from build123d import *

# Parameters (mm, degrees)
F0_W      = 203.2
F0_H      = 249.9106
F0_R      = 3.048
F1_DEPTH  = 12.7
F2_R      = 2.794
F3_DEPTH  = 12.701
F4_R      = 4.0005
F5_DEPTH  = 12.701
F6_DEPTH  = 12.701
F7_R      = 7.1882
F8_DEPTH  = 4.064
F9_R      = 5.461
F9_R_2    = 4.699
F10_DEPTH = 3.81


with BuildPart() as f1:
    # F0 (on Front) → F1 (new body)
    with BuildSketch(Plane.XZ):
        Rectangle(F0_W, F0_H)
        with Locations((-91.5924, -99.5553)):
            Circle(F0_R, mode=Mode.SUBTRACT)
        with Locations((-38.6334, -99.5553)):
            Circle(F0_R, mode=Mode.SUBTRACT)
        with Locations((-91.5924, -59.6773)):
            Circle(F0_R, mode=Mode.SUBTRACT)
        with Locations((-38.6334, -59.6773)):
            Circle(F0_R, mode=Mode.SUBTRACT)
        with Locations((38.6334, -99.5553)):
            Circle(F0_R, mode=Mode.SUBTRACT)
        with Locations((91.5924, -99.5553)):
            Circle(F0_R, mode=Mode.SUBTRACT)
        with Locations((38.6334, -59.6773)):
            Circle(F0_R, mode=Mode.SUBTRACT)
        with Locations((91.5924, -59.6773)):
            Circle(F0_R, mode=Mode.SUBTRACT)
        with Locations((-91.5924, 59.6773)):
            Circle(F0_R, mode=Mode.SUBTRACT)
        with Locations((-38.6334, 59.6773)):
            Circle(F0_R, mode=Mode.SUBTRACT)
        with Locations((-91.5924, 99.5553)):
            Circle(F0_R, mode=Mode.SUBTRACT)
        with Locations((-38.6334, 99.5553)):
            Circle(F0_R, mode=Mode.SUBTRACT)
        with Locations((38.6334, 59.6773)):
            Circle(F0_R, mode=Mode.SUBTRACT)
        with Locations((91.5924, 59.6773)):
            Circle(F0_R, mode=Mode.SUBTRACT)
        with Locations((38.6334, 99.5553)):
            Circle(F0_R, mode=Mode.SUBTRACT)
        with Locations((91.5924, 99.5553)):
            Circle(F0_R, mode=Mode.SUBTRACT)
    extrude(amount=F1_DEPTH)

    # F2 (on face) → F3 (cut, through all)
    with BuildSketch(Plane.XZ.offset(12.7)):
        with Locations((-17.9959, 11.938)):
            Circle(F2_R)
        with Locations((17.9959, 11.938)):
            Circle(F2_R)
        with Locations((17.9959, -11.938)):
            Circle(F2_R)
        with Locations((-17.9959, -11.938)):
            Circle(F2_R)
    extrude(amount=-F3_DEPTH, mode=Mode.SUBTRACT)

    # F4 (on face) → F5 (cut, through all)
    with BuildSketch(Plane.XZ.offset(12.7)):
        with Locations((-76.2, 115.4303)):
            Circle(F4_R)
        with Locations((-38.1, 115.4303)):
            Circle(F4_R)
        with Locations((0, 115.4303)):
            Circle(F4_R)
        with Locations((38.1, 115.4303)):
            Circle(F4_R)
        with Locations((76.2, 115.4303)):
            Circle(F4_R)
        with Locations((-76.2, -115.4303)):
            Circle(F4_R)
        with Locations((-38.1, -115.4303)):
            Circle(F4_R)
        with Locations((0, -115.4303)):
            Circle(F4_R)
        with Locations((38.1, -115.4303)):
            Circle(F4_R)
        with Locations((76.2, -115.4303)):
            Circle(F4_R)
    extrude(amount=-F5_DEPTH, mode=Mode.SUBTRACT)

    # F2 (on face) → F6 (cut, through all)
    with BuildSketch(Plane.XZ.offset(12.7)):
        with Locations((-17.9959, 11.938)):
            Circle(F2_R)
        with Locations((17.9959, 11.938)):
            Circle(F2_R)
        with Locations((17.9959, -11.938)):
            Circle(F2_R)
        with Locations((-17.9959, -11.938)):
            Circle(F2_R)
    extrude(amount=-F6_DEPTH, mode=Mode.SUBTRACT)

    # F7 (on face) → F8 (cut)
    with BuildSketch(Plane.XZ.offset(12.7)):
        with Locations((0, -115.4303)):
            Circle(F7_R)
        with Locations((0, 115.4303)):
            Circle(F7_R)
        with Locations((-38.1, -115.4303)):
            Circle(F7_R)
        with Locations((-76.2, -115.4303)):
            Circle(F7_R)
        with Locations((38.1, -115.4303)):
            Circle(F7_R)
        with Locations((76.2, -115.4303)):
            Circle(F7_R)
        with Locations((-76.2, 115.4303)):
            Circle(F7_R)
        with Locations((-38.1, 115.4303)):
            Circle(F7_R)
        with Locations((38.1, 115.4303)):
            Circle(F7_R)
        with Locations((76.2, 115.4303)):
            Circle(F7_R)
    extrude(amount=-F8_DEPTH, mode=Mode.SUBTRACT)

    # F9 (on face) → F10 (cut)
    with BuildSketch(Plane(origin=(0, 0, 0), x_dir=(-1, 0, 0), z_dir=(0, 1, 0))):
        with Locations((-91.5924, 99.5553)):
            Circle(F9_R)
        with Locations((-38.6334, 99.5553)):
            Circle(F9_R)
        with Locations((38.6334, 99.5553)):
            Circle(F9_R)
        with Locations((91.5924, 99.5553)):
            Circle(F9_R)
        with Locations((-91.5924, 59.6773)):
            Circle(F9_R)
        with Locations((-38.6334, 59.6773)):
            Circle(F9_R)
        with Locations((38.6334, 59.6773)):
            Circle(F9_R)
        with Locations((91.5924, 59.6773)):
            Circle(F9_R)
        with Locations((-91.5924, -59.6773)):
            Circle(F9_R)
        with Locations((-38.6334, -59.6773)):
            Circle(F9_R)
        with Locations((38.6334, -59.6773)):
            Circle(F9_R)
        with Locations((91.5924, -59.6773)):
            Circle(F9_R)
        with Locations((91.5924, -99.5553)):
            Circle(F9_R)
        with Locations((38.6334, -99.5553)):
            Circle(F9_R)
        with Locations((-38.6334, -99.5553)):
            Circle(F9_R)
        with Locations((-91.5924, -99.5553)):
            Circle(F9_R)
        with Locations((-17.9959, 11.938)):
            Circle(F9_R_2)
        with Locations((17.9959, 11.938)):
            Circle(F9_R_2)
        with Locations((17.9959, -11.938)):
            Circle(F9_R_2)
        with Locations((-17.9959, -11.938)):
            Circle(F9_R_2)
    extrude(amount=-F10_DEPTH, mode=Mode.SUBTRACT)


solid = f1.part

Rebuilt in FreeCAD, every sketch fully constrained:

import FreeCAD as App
import Part
import Sketcher
from FreeCAD import Vector
Q = App.Units.Quantity

doc = App.newDocument("Part")
body = doc.addObject("PartDesign::Body", "Body")

# Sketch on XZ plane
sketch1 = doc.addObject("Sketcher::SketchObject", "Sketch")
body.addObject(sketch1)
sketch1.AttachmentSupport = (doc.XZ_Plane, [""])
sketch1.MapMode = "FlatFace"
sketch1.addGeometry(Part.LineSegment(Vector(-101.6, 124.9553, 0), Vector(-101.6, -124.9553, 0)), False)
sketch1.addGeometry(Part.LineSegment(Vector(-101.6, -124.9553, 0), Vector(101.6, -124.9553, 0)), False)
sketch1.addGeometry(Part.LineSegment(Vector(101.6, -124.9553, 0), Vector(101.6, 124.9553, 0)), False)
sketch1.addGeometry(Part.LineSegment(Vector(101.6, 124.9553, 0), Vector(-101.6, 124.9553, 0)), False)
sketch1.addGeometry(Part.Circle(Vector(-91.5924, -99.5553, 0), Vector(0, 0, 1), 3.048), False)
sketch1.addGeometry(Part.Circle(Vector(-91.5924, -59.6773, 0), Vector(0, 0, 1), 3.048), False)
sketch1.addGeometry(Part.Circle(Vector(-38.6334, -99.5553, 0), Vector(0, 0, 1), 3.048), False)
sketch1.addGeometry(Part.Circle(Vector(-38.6334, -59.6773, 0), Vector(0, 0, 1), 3.048), False)
sketch1.addGeometry(Part.Circle(Vector(38.6334, -99.5553, 0), Vector(0, 0, 1), 3.048), False)
sketch1.addGeometry(Part.Circle(Vector(38.6334, -59.6773, 0), Vector(0, 0, 1), 3.048), False)
sketch1.addGeometry(Part.Circle(Vector(91.5924, -99.5553, 0), Vector(0, 0, 1), 3.048), False)
sketch1.addGeometry(Part.Circle(Vector(91.5924, -59.6773, 0), Vector(0, 0, 1), 3.048), False)
sketch1.addGeometry(Part.Circle(Vector(-91.5924, 59.6773, 0), Vector(0, 0, 1), 3.048), False)
sketch1.addGeometry(Part.Circle(Vector(-91.5924, 99.5553, 0), Vector(0, 0, 1), 3.048), False)
sketch1.addGeometry(Part.Circle(Vector(-38.6334, 59.6773, 0), Vector(0, 0, 1), 3.048), False)
sketch1.addGeometry(Part.Circle(Vector(-38.6334, 99.5553, 0), Vector(0, 0, 1), 3.048), False)
sketch1.addGeometry(Part.Circle(Vector(38.6334, 59.6773, 0), Vector(0, 0, 1), 3.048), False)
sketch1.addGeometry(Part.Circle(Vector(38.6334, 99.5553, 0), Vector(0, 0, 1), 3.048), False)
sketch1.addGeometry(Part.Circle(Vector(91.5924, 59.6773, 0), Vector(0, 0, 1), 3.048), False)
sketch1.addGeometry(Part.Circle(Vector(91.5924, 99.5553, 0), Vector(0, 0, 1), 3.048), False)
sketch1.addConstraint(Sketcher.Constraint("Coincident", 0, 2, 1, 1))
sketch1.addConstraint(Sketcher.Constraint("Coincident", 1, 2, 2, 1))
sketch1.addConstraint(Sketcher.Constraint("Coincident", 2, 2, 3, 1))
sketch1.addConstraint(Sketcher.Constraint("Coincident", 3, 2, 0, 1))
sketch1.addConstraint(Sketcher.Constraint("Vertical", 0))
sketch1.addConstraint(Sketcher.Constraint("Horizontal", 1))
sketch1.addConstraint(Sketcher.Constraint("Vertical", 2))
sketch1.addConstraint(Sketcher.Constraint("Horizontal", 3))
sketch1.addConstraint(Sketcher.Constraint("Equal", 4, 5))
sketch1.addConstraint(Sketcher.Constraint("Equal", 5, 6))
sketch1.addConstraint(Sketcher.Constraint("Equal", 6, 7))
sketch1.addConstraint(Sketcher.Constraint("Equal", 7, 8))
sketch1.addConstraint(Sketcher.Constraint("Equal", 8, 9))
sketch1.addConstraint(Sketcher.Constraint("Equal", 9, 10))
sketch1.addConstraint(Sketcher.Constraint("Equal", 10, 11))
sketch1.addConstraint(Sketcher.Constraint("Equal", 11, 12))
sketch1.addConstraint(Sketcher.Constraint("Equal", 12, 13))
sketch1.addConstraint(Sketcher.Constraint("Equal", 13, 14))
sketch1.addConstraint(Sketcher.Constraint("Equal", 14, 15))
sketch1.addConstraint(Sketcher.Constraint("Equal", 15, 16))
sketch1.addConstraint(Sketcher.Constraint("Equal", 16, 17))
sketch1.addConstraint(Sketcher.Constraint("Equal", 17, 18))
sketch1.addConstraint(Sketcher.Constraint("Equal", 18, 19))
sketch1.addConstraint(Sketcher.Constraint("Symmetric", 11, 3, 12, 3, -1, 1))
sketch1.addConstraint(Sketcher.Constraint("Symmetric", 10, 3, 13, 3, -1, 1))
sketch1.addConstraint(Sketcher.Constraint("Symmetric", 9, 3, 14, 3, -1, 1))
sketch1.addConstraint(Sketcher.Constraint("Symmetric", 8, 3, 15, 3, -1, 1))
sketch1.addConstraint(Sketcher.Constraint("Symmetric", 7, 3, 16, 3, -1, 1))
sketch1.addConstraint(Sketcher.Constraint("Symmetric", 6, 3, 17, 3, -1, 1))
sketch1.addConstraint(Sketcher.Constraint("Symmetric", 5, 3, 18, 3, -1, 1))
sketch1.addConstraint(Sketcher.Constraint("Symmetric", 4, 3, 19, 3, -1, 1))
sketch1.addConstraint(Sketcher.Constraint("Symmetric", 0, 2, 2, 2, -1, 1))
sketch1.addConstraint(Sketcher.Constraint("Symmetric", 6, 3, 8, 3, -2))
sketch1.addConstraint(Sketcher.Constraint("Symmetric", 7, 3, 9, 3, -2))
sketch1.addConstraint(Sketcher.Constraint("Symmetric", 4, 3, 10, 3, -2))
sketch1.addConstraint(Sketcher.Constraint("Symmetric", 5, 3, 11, 3, -2))
sketch1.addConstraint(Sketcher.Constraint("Horizontal", 4, 3, 6, 3))
sketch1.addConstraint(Sketcher.Constraint("Horizontal", 5, 3, 7, 3))
sketch1.addConstraint(Sketcher.Constraint("Vertical", 4, 3, 5, 3))
sketch1.addConstraint(Sketcher.Constraint("Vertical", 6, 3, 7, 3))
sketch1.addConstraint(Sketcher.Constraint("Diameter", 4, Q("0.24 in")))
sketch1.addConstraint(Sketcher.Constraint("DistanceX", 1, 1, 1, 2, Q("8 in")))
sketch1.addConstraint(Sketcher.Constraint("DistanceY", 0, 2, 4, 3, Q("1 in")))
sketch1.addConstraint(Sketcher.Constraint("DistanceY", 0, 2, 0, 1, Q("9.839 in")))
sketch1.addConstraint(Sketcher.Constraint("DistanceY", 4, 3, 5, 3, Q("1.57 in")))
sketch1.addConstraint(Sketcher.Constraint("DistanceX", 4, 3, -1, 1, Q("3.606 in")))
sketch1.addConstraint(Sketcher.Constraint("DistanceX", 6, 3, -1, 1, Q("1.521 in")))
pad1 = doc.addObject("PartDesign::Pad", "Pad")
body.addObject(pad1)
pad1.Profile = sketch1
pad1.Length = Q("0.5 in")

# Sketch on XZ plane
sketch2 = doc.addObject("Sketcher::SketchObject", "Sketch001")
body.addObject(sketch2)
sketch2.AttachmentSupport = (doc.XZ_Plane, [""])
sketch2.MapMode = "FlatFace"
sketch2.AttachmentOffset = App.Placement(Vector(0, 0, 0.5 * 25.4), App.Rotation())
sketch2.addGeometry(Part.Circle(Vector(-17.9959, 11.938, 0), Vector(0, 0, 1), 2.794), False)
sketch2.addGeometry(Part.Circle(Vector(17.9959, 11.938, 0), Vector(0, 0, 1), 2.794), False)
sketch2.addGeometry(Part.Circle(Vector(17.9959, -11.938, 0), Vector(0, 0, 1), 2.794), False)
sketch2.addGeometry(Part.Circle(Vector(-17.9959, -11.938, 0), Vector(0, 0, 1), 2.794), False)
sketch2.addConstraint(Sketcher.Constraint("Equal", 0, 1))
sketch2.addConstraint(Sketcher.Constraint("Equal", 1, 2))
sketch2.addConstraint(Sketcher.Constraint("Equal", 2, 3))
sketch2.addConstraint(Sketcher.Constraint("Symmetric", 0, 3, 2, 3, -1, 1))
sketch2.addConstraint(Sketcher.Constraint("Symmetric", 1, 3, 3, 3, -1, 1))
sketch2.addConstraint(Sketcher.Constraint("Symmetric", 0, 3, 1, 3, -2))
sketch2.addConstraint(Sketcher.Constraint("Diameter", 0, Q("0.22 in")))
sketch2.addConstraint(Sketcher.Constraint("DistanceY", -1, 1, 0, 3, Q("0.47 in")))
sketch2.addConstraint(Sketcher.Constraint("DistanceX", 0, 3, 1, 3, Q("1.417 in")))
pocket1 = doc.addObject("PartDesign::Pocket", "Pocket")
body.addObject(pocket1)
pocket1.Profile = sketch2
pocket1.Type = "ThroughAll"

# Sketch on XZ plane
sketch3 = doc.addObject("Sketcher::SketchObject", "Sketch002")
body.addObject(sketch3)
sketch3.AttachmentSupport = (doc.XZ_Plane, [""])
sketch3.MapMode = "FlatFace"
sketch3.AttachmentOffset = App.Placement(Vector(0, 0, 0.5 * 25.4), App.Rotation())
sketch3.addGeometry(Part.Circle(Vector(-76.2, 115.4303, 0), Vector(0, 0, 1), 4.0005), False)
sketch3.addGeometry(Part.Circle(Vector(-38.1, 115.4303, 0), Vector(0, 0, 1), 4.0005), False)
sketch3.addGeometry(Part.Circle(Vector(0, 115.4303, 0), Vector(0, 0, 1), 4.0005), False)
sketch3.addGeometry(Part.Circle(Vector(38.1, 115.4303, 0), Vector(0, 0, 1), 4.0005), False)
sketch3.addGeometry(Part.Circle(Vector(76.2, 115.4303, 0), Vector(0, 0, 1), 4.0005), False)
sketch3.addGeometry(Part.Circle(Vector(-76.2, -115.4303, 0), Vector(0, 0, 1), 4.0005), False)
sketch3.addGeometry(Part.Circle(Vector(-38.1, -115.4303, 0), Vector(0, 0, 1), 4.0005), False)
sketch3.addGeometry(Part.Circle(Vector(0, -115.4303, 0), Vector(0, 0, 1), 4.0005), False)
sketch3.addGeometry(Part.Circle(Vector(38.1, -115.4303, 0), Vector(0, 0, 1), 4.0005), False)
sketch3.addGeometry(Part.Circle(Vector(76.2, -115.4303, 0), Vector(0, 0, 1), 4.0005), False)
sketch3.addConstraint(Sketcher.Constraint("Equal", 0, 1))
sketch3.addConstraint(Sketcher.Constraint("Equal", 1, 2))
sketch3.addConstraint(Sketcher.Constraint("Equal", 2, 3))
sketch3.addConstraint(Sketcher.Constraint("Equal", 3, 4))
sketch3.addConstraint(Sketcher.Constraint("Equal", 4, 5))
sketch3.addConstraint(Sketcher.Constraint("Equal", 5, 6))
sketch3.addConstraint(Sketcher.Constraint("Equal", 6, 7))
sketch3.addConstraint(Sketcher.Constraint("Equal", 7, 8))
sketch3.addConstraint(Sketcher.Constraint("Equal", 8, 9))
sketch3.addConstraint(Sketcher.Constraint("Symmetric", 4, 3, 5, 3, -1, 1))
sketch3.addConstraint(Sketcher.Constraint("Symmetric", 3, 3, 6, 3, -1, 1))
sketch3.addConstraint(Sketcher.Constraint("Symmetric", 2, 3, 7, 3, -1, 1))
sketch3.addConstraint(Sketcher.Constraint("Symmetric", 1, 3, 8, 3, -1, 1))
sketch3.addConstraint(Sketcher.Constraint("Symmetric", 0, 3, 9, 3, -1, 1))
sketch3.addConstraint(Sketcher.Constraint("Symmetric", 1, 3, 3, 3, -2))
sketch3.addConstraint(Sketcher.Constraint("Symmetric", 0, 3, 4, 3, -2))
sketch3.addConstraint(Sketcher.Constraint("PointOnObject", 2, 3, -2))
sketch3.addConstraint(Sketcher.Constraint("Horizontal", 0, 3, 1, 3))
sketch3.addConstraint(Sketcher.Constraint("Horizontal", 1, 3, 2, 3))
sketch3.addConstraint(Sketcher.Constraint("Diameter", 0, Q("0.315 in")))
sketch3.addConstraint(Sketcher.Constraint("DistanceX", 0, 3, -1, 1, Q("3 in")))
sketch3.addConstraint(Sketcher.Constraint("DistanceX", 1, 3, 3, 3, Q("3 in")))
sketch3.addConstraint(Sketcher.Constraint("DistanceY", 5, 3, 0, 3, Q("9.089 in")))
pocket2 = doc.addObject("PartDesign::Pocket", "Pocket001")
body.addObject(pocket2)
pocket2.Profile = sketch3
pocket2.Type = "ThroughAll"

# Sketch on XZ plane
sketch4 = doc.addObject("Sketcher::SketchObject", "Sketch003")
body.addObject(sketch4)
sketch4.AttachmentSupport = (doc.XZ_Plane, [""])
sketch4.MapMode = "FlatFace"
sketch4.AttachmentOffset = App.Placement(Vector(0, 0, 0.5 * 25.4), App.Rotation())
sketch4.addGeometry(Part.Circle(Vector(-17.9959, 11.938, 0), Vector(0, 0, 1), 2.794), False)
sketch4.addGeometry(Part.Circle(Vector(17.9959, 11.938, 0), Vector(0, 0, 1), 2.794), False)
sketch4.addGeometry(Part.Circle(Vector(17.9959, -11.938, 0), Vector(0, 0, 1), 2.794), False)
sketch4.addGeometry(Part.Circle(Vector(-17.9959, -11.938, 0), Vector(0, 0, 1), 2.794), False)
sketch4.addConstraint(Sketcher.Constraint("Equal", 0, 1))
sketch4.addConstraint(Sketcher.Constraint("Equal", 1, 2))
sketch4.addConstraint(Sketcher.Constraint("Equal", 2, 3))
sketch4.addConstraint(Sketcher.Constraint("Symmetric", 0, 3, 2, 3, -1, 1))
sketch4.addConstraint(Sketcher.Constraint("Symmetric", 1, 3, 3, 3, -1, 1))
sketch4.addConstraint(Sketcher.Constraint("Symmetric", 0, 3, 1, 3, -2))
sketch4.addConstraint(Sketcher.Constraint("Diameter", 0, Q("0.22 in")))
sketch4.addConstraint(Sketcher.Constraint("DistanceY", -1, 1, 0, 3, Q("0.47 in")))
sketch4.addConstraint(Sketcher.Constraint("DistanceX", 0, 3, 1, 3, Q("1.417 in")))
pocket3 = doc.addObject("PartDesign::Pocket", "Pocket002")
body.addObject(pocket3)
pocket3.Profile = sketch4
pocket3.Type = "ThroughAll"

# Sketch on XZ plane
sketch5 = doc.addObject("Sketcher::SketchObject", "Sketch004")
body.addObject(sketch5)
sketch5.AttachmentSupport = (doc.XZ_Plane, [""])
sketch5.MapMode = "FlatFace"
sketch5.AttachmentOffset = App.Placement(Vector(0, 0, 0.5 * 25.4), App.Rotation())
sketch5.addGeometry(Part.Circle(Vector(0, -115.4303, 0), Vector(0, 0, 1), 7.1882), False)
sketch5.addGeometry(Part.Circle(Vector(0, 115.4303, 0), Vector(0, 0, 1), 7.1882), False)
sketch5.addGeometry(Part.Circle(Vector(-38.1, -115.4303, 0), Vector(0, 0, 1), 7.1882), False)
sketch5.addGeometry(Part.Circle(Vector(-76.2, -115.4303, 0), Vector(0, 0, 1), 7.1882), False)
sketch5.addGeometry(Part.Circle(Vector(38.1, -115.4303, 0), Vector(0, 0, 1), 7.1882), False)
sketch5.addGeometry(Part.Circle(Vector(76.2, -115.4303, 0), Vector(0, 0, 1), 7.1882), False)
sketch5.addGeometry(Part.Circle(Vector(-76.2, 115.4303, 0), Vector(0, 0, 1), 7.1882), False)
sketch5.addGeometry(Part.Circle(Vector(-38.1, 115.4303, 0), Vector(0, 0, 1), 7.1882), False)
sketch5.addGeometry(Part.Circle(Vector(38.1, 115.4303, 0), Vector(0, 0, 1), 7.1882), False)
sketch5.addGeometry(Part.Circle(Vector(76.2, 115.4303, 0), Vector(0, 0, 1), 7.1882), False)
sketch5.addConstraint(Sketcher.Constraint("Equal", 0, 1))
sketch5.addConstraint(Sketcher.Constraint("Equal", 1, 2))
sketch5.addConstraint(Sketcher.Constraint("Equal", 2, 3))
sketch5.addConstraint(Sketcher.Constraint("Equal", 3, 4))
sketch5.addConstraint(Sketcher.Constraint("Equal", 4, 5))
sketch5.addConstraint(Sketcher.Constraint("Equal", 5, 6))
sketch5.addConstraint(Sketcher.Constraint("Equal", 6, 7))
sketch5.addConstraint(Sketcher.Constraint("Equal", 7, 8))
sketch5.addConstraint(Sketcher.Constraint("Equal", 8, 9))
sketch5.addConstraint(Sketcher.Constraint("Symmetric", 0, 3, 1, 3, -1, 1))
sketch5.addConstraint(Sketcher.Constraint("Symmetric", 5, 3, 6, 3, -1, 1))
sketch5.addConstraint(Sketcher.Constraint("Symmetric", 4, 3, 7, 3, -1, 1))
sketch5.addConstraint(Sketcher.Constraint("Symmetric", 2, 3, 8, 3, -1, 1))
sketch5.addConstraint(Sketcher.Constraint("Symmetric", 3, 3, 9, 3, -1, 1))
sketch5.addConstraint(Sketcher.Constraint("Symmetric", 2, 3, 4, 3, -2))
sketch5.addConstraint(Sketcher.Constraint("Symmetric", 3, 3, 5, 3, -2))
sketch5.addConstraint(Sketcher.Constraint("PointOnObject", 0, 3, -2))
sketch5.addConstraint(Sketcher.Constraint("Horizontal", 0, 3, 2, 3))
sketch5.addConstraint(Sketcher.Constraint("Horizontal", 2, 3, 3, 3))
sketch5.addConstraint(Sketcher.Constraint("Diameter", 0, Q("0.566 in")))
sketch5.addConstraint(Sketcher.Constraint("DistanceX", 3, 3, -1, 1, Q("3 in")))
sketch5.addConstraint(Sketcher.Constraint("DistanceX", 2, 3, 4, 3, Q("3 in")))
sketch5.addConstraint(Sketcher.Constraint("DistanceY", 0, 3, 1, 3, Q("9.089 in")))
pocket4 = doc.addObject("PartDesign::Pocket", "Pocket003")
body.addObject(pocket4)
pocket4.Profile = sketch5
pocket4.Length = Q("0.16 in")

# Sketch on XZ plane
sketch6 = doc.addObject("Sketcher::SketchObject", "Sketch005")
body.addObject(sketch6)
sketch6.AttachmentSupport = (doc.XZ_Plane, [""])
sketch6.MapMode = "FlatFace"
sketch6.addGeometry(Part.Circle(Vector(91.5924, 99.5553, 0), Vector(0, 0, 1), 5.461), False)
sketch6.addGeometry(Part.Circle(Vector(38.6334, 99.5553, 0), Vector(0, 0, 1), 5.461), False)
sketch6.addGeometry(Part.Circle(Vector(-38.6334, 99.5553, 0), Vector(0, 0, 1), 5.461), False)
sketch6.addGeometry(Part.Circle(Vector(-91.5924, 99.5553, 0), Vector(0, 0, 1), 5.461), False)
sketch6.addGeometry(Part.Circle(Vector(91.5924, 59.6773, 0), Vector(0, 0, 1), 5.461), False)
sketch6.addGeometry(Part.Circle(Vector(38.6334, 59.6773, 0), Vector(0, 0, 1), 5.461), False)
sketch6.addGeometry(Part.Circle(Vector(-38.6334, 59.6773, 0), Vector(0, 0, 1), 5.461), False)
sketch6.addGeometry(Part.Circle(Vector(-91.5924, 59.6773, 0), Vector(0, 0, 1), 5.461), False)
sketch6.addGeometry(Part.Circle(Vector(91.5924, -59.6773, 0), Vector(0, 0, 1), 5.461), False)
sketch6.addGeometry(Part.Circle(Vector(38.6334, -59.6773, 0), Vector(0, 0, 1), 5.461), False)
sketch6.addGeometry(Part.Circle(Vector(-38.6334, -59.6773, 0), Vector(0, 0, 1), 5.461), False)
sketch6.addGeometry(Part.Circle(Vector(-91.5924, -59.6773, 0), Vector(0, 0, 1), 5.461), False)
sketch6.addGeometry(Part.Circle(Vector(-91.5924, -99.5553, 0), Vector(0, 0, 1), 5.461), False)
sketch6.addGeometry(Part.Circle(Vector(-38.6334, -99.5553, 0), Vector(0, 0, 1), 5.461), False)
sketch6.addGeometry(Part.Circle(Vector(38.6334, -99.5553, 0), Vector(0, 0, 1), 5.461), False)
sketch6.addGeometry(Part.Circle(Vector(91.5924, -99.5553, 0), Vector(0, 0, 1), 5.461), False)
sketch6.addGeometry(Part.Circle(Vector(17.9959, 11.938, 0), Vector(0, 0, 1), 4.699), False)
sketch6.addGeometry(Part.Circle(Vector(-17.9959, 11.938, 0), Vector(0, 0, 1), 4.699), False)
sketch6.addGeometry(Part.Circle(Vector(-17.9959, -11.938, 0), Vector(0, 0, 1), 4.699), False)
sketch6.addGeometry(Part.Circle(Vector(17.9959, -11.938, 0), Vector(0, 0, 1), 4.699), False)
sketch6.addConstraint(Sketcher.Constraint("Equal", 0, 1))
sketch6.addConstraint(Sketcher.Constraint("Equal", 1, 2))
sketch6.addConstraint(Sketcher.Constraint("Equal", 2, 3))
sketch6.addConstraint(Sketcher.Constraint("Equal", 3, 4))
sketch6.addConstraint(Sketcher.Constraint("Equal", 4, 5))
sketch6.addConstraint(Sketcher.Constraint("Equal", 5, 6))
sketch6.addConstraint(Sketcher.Constraint("Equal", 6, 7))
sketch6.addConstraint(Sketcher.Constraint("Equal", 7, 8))
sketch6.addConstraint(Sketcher.Constraint("Equal", 8, 9))
sketch6.addConstraint(Sketcher.Constraint("Equal", 9, 10))
sketch6.addConstraint(Sketcher.Constraint("Equal", 10, 11))
sketch6.addConstraint(Sketcher.Constraint("Equal", 11, 12))
sketch6.addConstraint(Sketcher.Constraint("Equal", 12, 13))
sketch6.addConstraint(Sketcher.Constraint("Equal", 13, 14))
sketch6.addConstraint(Sketcher.Constraint("Equal", 14, 15))
sketch6.addConstraint(Sketcher.Constraint("Equal", 16, 17))
sketch6.addConstraint(Sketcher.Constraint("Equal", 17, 18))
sketch6.addConstraint(Sketcher.Constraint("Equal", 18, 19))
sketch6.addConstraint(Sketcher.Constraint("Symmetric", 7, 3, 8, 3, -1, 1))
sketch6.addConstraint(Sketcher.Constraint("Symmetric", 6, 3, 9, 3, -1, 1))
sketch6.addConstraint(Sketcher.Constraint("Symmetric", 5, 3, 10, 3, -1, 1))
sketch6.addConstraint(Sketcher.Constraint("Symmetric", 4, 3, 11, 3, -1, 1))
sketch6.addConstraint(Sketcher.Constraint("Symmetric", 0, 3, 12, 3, -1, 1))
sketch6.addConstraint(Sketcher.Constraint("Symmetric", 1, 3, 13, 3, -1, 1))
sketch6.addConstraint(Sketcher.Constraint("Symmetric", 2, 3, 14, 3, -1, 1))
sketch6.addConstraint(Sketcher.Constraint("Symmetric", 3, 3, 15, 3, -1, 1))
sketch6.addConstraint(Sketcher.Constraint("Symmetric", 16, 3, 18, 3, -1, 1))
sketch6.addConstraint(Sketcher.Constraint("Symmetric", 17, 3, 19, 3, -1, 1))
sketch6.addConstraint(Sketcher.Constraint("Symmetric", 1, 3, 2, 3, -2))
sketch6.addConstraint(Sketcher.Constraint("Symmetric", 0, 3, 3, 3, -2))
sketch6.addConstraint(Sketcher.Constraint("Symmetric", 5, 3, 6, 3, -2))
sketch6.addConstraint(Sketcher.Constraint("Symmetric", 4, 3, 7, 3, -2))
sketch6.addConstraint(Sketcher.Constraint("Symmetric", 16, 3, 17, 3, -2))
sketch6.addConstraint(Sketcher.Constraint("Horizontal", 0, 3, 1, 3))
sketch6.addConstraint(Sketcher.Constraint("Horizontal", 4, 3, 5, 3))
sketch6.addConstraint(Sketcher.Constraint("Vertical", 0, 3, 4, 3))
sketch6.addConstraint(Sketcher.Constraint("Vertical", 1, 3, 5, 3))
sketch6.addConstraint(Sketcher.Constraint("Diameter", 0, Q("0.43 in")))
sketch6.addConstraint(Sketcher.Constraint("Diameter", 16, Q("0.37 in")))
sketch6.addConstraint(Sketcher.Constraint("DistanceY", -1, 1, 16, 3, Q("0.47 in")))
sketch6.addConstraint(Sketcher.Constraint("DistanceY", 4, 3, 0, 3, Q("1.57 in")))
sketch6.addConstraint(Sketcher.Constraint("DistanceX", -1, 1, 0, 3, Q("3.606 in")))
sketch6.addConstraint(Sketcher.Constraint("DistanceX", -1, 1, 1, 3, Q("1.521 in")))
sketch6.addConstraint(Sketcher.Constraint("DistanceY", 8, 3, 4, 3, Q("4.699 in")))
sketch6.addConstraint(Sketcher.Constraint("DistanceX", 16, 3, 5, 3, Q("0.8125 in")))
pocket5 = doc.addObject("PartDesign::Pocket", "Pocket004")
body.addObject(pocket5)
pocket5.Profile = sketch6
pocket5.Length = Q("0.15 in")
pocket5.Reversed = True

doc.recompute()
